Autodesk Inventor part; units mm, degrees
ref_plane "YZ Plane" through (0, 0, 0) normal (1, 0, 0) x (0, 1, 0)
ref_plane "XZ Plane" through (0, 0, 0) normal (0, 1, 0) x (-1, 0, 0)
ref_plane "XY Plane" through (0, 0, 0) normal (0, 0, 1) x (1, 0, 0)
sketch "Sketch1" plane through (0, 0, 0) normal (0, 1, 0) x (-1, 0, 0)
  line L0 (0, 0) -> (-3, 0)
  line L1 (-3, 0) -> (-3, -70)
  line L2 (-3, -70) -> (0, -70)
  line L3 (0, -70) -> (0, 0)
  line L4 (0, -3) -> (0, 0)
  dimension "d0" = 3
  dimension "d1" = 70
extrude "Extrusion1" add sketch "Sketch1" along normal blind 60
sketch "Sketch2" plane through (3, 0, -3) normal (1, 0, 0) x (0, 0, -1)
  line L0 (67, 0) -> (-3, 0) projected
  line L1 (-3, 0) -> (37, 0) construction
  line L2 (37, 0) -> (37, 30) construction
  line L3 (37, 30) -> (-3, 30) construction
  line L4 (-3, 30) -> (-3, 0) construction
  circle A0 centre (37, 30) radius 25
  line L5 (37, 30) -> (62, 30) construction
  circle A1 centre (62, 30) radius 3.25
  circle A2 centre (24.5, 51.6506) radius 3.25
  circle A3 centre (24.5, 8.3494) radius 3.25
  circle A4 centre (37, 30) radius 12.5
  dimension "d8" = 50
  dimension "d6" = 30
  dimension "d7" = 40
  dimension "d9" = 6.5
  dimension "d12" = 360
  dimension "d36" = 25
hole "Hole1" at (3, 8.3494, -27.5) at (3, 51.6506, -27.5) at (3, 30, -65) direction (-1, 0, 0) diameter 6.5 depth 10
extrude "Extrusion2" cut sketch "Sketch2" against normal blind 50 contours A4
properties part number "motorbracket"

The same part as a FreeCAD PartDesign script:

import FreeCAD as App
import Part
import Sketcher
from FreeCAD import Vector
Q = App.Units.Quantity

doc = App.newDocument("Part")
body = doc.addObject("PartDesign::Body", "Body")

sketch1 = body.newObject("Sketcher::SketchObject", "Sketch")
sketch1.AttachmentSupport = (doc.getObject("XZ_Plane"), [""])
sketch1.MapMode = "FlatFace"
sketch1.addGeometry(Part.LineSegment(Vector(0, -70, 0), Vector(0, 0, 0)), False)
sketch1.addGeometry(Part.LineSegment(Vector(0, 0, 0), Vector(3, 0, 0)), False)
sketch1.addGeometry(Part.LineSegment(Vector(3, 0, 0), Vector(3, -70, 0)), False)
sketch1.addGeometry(Part.LineSegment(Vector(3, -70, 0), Vector(0, -70, 0)), False)
sketch1.addConstraint(Sketcher.Constraint("Coincident", 0, 2, 1, 1))
sketch1.addConstraint(Sketcher.Constraint("Coincident", 1, 2, 2, 1))
sketch1.addConstraint(Sketcher.Constraint("Coincident", 2, 2, 3, 1))
sketch1.addConstraint(Sketcher.Constraint("Coincident", 3, 2, 0, 1))
sketch1.addConstraint(Sketcher.Constraint("Vertical", 0))
sketch1.addConstraint(Sketcher.Constraint("Horizontal", 1))
sketch1.addConstraint(Sketcher.Constraint("Vertical", 2))
sketch1.addConstraint(Sketcher.Constraint("Horizontal", 3))
sketch1.addConstraint(Sketcher.Constraint("Coincident", 0, 2, -1, 1))
sketch1.addConstraint(Sketcher.Constraint("DistanceX", 1, 1, 1, 2, Q("3 mm")))
sketch1.addConstraint(Sketcher.Constraint("DistanceY", 0, 1, 0, 2, Q("70 mm")))
pad1 = body.newObject("PartDesign::Pad", "Pad")
pad1.Profile = sketch1
pad1.Length = 60
pad1.Reversed = True

sketch2 = body.newObject("Sketcher::SketchObject", "Sketch001")
sketch2.AttachmentSupport = (doc.getObject("YZ_Plane"), [""])
sketch2.MapMode = "FlatFace"
sketch2.AttachmentOffset = App.Placement(Vector(0, 0, 3), App.Rotation())
sketch2.addGeometry(Part.Circle(Vector(8.3, -27.5, 0), Vector(0, 0, 1), 3.2), False)
sketch2.addGeometry(Part.Circle(Vector(51.7, -27.5, 0), Vector(0, 0, 1), 3.2), False)
sketch2.addGeometry(Part.Circle(Vector(30, -65, 0), Vector(0, 0, 1), 3.2), False)
sketch2.addConstraint(Sketcher.Constraint("Equal", 0, 1))
sketch2.addConstraint(Sketcher.Constraint("Equal", 1, 2))
sketch2.addConstraint(Sketcher.Constraint("Horizontal", 0, 3, 1, 3))
sketch2.addConstraint(Sketcher.Constraint("Diameter", 0, Q("6.5 mm")))
sketch2.addConstraint(Sketcher.Constraint("DistanceX", -1, 1, 2, 3, Q("30 mm")))
sketch2.addConstraint(Sketcher.Constraint("DistanceY", 2, 3, -1, 1, Q("65 mm")))
sketch2.addConstraint(Sketcher.Constraint("DistanceY", 0, 3, -1, 1, Q("27.5 mm")))
sketch2.addConstraint(Sketcher.Constraint("DistanceX", -1, 1, 0, 3, Q("8.3494 mm")))
sketch2.addConstraint(Sketcher.Constraint("DistanceX", -1, 1, 1, 3, Q("51.6506 mm")))
doc.recompute()
hole = body.newObject("PartDesign::Hole", "Hole")
hole.Profile = sketch2
hole.ThreadType = "None"
hole.Diameter = 6.5
hole.DepthType = "Dimension"
hole.Depth = 10
hole.DrillPoint = "Flat"

sketch3 = body.newObject("Sketcher::SketchObject", "Sketch002")
sketch3.AttachmentSupport = (doc.getObject("YZ_Plane"), [""])
sketch3.MapMode = "FlatFace"
sketch3.AttachmentOffset = App.Placement(Vector(0, 0, 3), App.Rotation())
sketch3.addGeometry(Part.Circle(Vector(30, -40, 0), Vector(0, 0, 1), 12), False)
sketch3.addConstraint(Sketcher.Constraint("Diameter", 0, Q("25 mm")))
sketch3.addConstraint(Sketcher.Constraint("DistanceX", -1, 1, 0, 3, Q("30 mm")))
sketch3.addConstraint(Sketcher.Constraint("DistanceY", 0, 3, -1, 1, Q("40 mm")))
pocket1 = body.newObject("PartDesign::Pocket", "Pocket")
pocket1.Profile = sketch3
pocket1.Length = 50

doc.recompute()
